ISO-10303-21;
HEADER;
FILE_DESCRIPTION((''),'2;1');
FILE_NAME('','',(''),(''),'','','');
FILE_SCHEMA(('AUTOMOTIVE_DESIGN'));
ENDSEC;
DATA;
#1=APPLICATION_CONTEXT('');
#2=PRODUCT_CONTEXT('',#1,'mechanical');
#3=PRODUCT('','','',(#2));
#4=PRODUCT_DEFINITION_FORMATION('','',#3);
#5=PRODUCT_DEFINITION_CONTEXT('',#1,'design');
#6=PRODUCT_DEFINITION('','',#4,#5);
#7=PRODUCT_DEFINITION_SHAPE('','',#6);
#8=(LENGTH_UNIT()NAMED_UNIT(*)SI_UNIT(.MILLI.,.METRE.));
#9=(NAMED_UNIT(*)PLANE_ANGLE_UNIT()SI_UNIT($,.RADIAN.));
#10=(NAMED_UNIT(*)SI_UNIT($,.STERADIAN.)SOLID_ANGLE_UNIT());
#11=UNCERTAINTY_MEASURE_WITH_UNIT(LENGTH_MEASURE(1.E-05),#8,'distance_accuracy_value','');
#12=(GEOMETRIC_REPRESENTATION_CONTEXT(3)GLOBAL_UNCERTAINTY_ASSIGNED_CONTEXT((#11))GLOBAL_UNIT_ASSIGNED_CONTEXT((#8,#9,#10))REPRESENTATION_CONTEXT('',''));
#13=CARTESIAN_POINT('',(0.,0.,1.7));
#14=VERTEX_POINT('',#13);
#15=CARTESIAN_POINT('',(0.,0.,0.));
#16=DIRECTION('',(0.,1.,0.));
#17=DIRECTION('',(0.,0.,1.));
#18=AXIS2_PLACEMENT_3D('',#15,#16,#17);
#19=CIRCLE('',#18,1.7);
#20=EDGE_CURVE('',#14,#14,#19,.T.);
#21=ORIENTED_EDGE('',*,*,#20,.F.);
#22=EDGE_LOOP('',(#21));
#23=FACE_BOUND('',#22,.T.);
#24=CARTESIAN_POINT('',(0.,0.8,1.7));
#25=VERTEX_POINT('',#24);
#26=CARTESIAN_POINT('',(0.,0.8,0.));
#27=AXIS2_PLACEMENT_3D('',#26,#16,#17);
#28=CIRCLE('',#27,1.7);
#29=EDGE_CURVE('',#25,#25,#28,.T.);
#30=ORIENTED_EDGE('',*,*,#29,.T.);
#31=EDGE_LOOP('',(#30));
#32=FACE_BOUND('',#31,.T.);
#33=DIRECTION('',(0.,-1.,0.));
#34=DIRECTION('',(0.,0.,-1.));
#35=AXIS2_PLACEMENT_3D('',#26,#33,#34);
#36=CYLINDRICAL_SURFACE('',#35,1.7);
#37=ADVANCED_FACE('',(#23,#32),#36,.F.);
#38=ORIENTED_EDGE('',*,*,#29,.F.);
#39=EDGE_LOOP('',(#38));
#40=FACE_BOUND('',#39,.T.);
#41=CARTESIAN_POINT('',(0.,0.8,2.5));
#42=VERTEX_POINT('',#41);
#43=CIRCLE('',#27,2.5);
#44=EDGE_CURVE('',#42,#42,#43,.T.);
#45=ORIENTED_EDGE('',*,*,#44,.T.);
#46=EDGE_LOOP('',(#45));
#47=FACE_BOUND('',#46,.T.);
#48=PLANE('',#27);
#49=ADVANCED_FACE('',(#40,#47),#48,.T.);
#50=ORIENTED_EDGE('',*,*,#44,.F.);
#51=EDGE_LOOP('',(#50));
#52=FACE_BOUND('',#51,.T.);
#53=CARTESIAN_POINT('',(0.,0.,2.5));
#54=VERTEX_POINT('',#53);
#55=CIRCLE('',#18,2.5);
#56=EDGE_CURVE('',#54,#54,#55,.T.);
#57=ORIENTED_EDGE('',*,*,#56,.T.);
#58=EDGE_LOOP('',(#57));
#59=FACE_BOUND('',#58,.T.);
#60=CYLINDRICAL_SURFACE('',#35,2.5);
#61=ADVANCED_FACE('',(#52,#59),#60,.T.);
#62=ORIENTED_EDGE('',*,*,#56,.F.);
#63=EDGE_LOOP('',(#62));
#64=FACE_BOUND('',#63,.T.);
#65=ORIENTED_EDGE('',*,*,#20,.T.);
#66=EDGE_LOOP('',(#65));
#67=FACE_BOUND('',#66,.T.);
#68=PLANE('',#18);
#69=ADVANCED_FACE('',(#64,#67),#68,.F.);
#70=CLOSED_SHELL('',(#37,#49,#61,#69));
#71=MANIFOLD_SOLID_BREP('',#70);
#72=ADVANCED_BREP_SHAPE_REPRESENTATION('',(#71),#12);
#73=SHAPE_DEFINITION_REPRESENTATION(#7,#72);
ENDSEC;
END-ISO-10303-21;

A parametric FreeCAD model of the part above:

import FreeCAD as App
import Part
import Sketcher
Q = App.Units.Quantity

doc = App.newDocument("Part")
params = doc.addObject("Spreadsheet::Sheet", "Params")
for row, (alias, value) in enumerate([
    ("sketch1_diameter", "5 mm"),
    ("sketch1_diameter2", "3.4 mm"),
    ("pad1_length", "0.8 mm"),
], start=1):
    params.set(f"A{row}", alias)
    params.set(f"B{row}", "=" + value)
    params.setAlias(f"B{row}", alias)

body = doc.addObject("PartDesign::Body", "Body")

sketch1 = body.newObject("Sketcher::SketchObject", "Sketch")
sketch1.AttachmentSupport = (doc.getObject("XZ_Plane"), [""])
sketch1.MapMode = "FlatFace"
sketch1.addGeometry([
    Part.Circle(App.Vector(0, 0, 0), App.Vector(0, 0, 1), 2.5),
    Part.Circle(App.Vector(0, 0, 0), App.Vector(0, 0, 1), 1.7),
], False)
sketch1.addConstraint([
    Sketcher.Constraint("Coincident", 0, 3, -1, 1),
    Sketcher.Constraint("Coincident", 1, 3, -1, 1),
    Sketcher.Constraint("Diameter", 0, Q("5 mm")),
    Sketcher.Constraint("Diameter", 1, Q("3.4 mm")),
])
sketch1.setExpression("Constraints[2]", "Params.sketch1_diameter")
sketch1.setExpression("Constraints[3]", "Params.sketch1_diameter2")
pad1 = body.newObject("PartDesign::Pad", "Pad")
pad1.Profile = sketch1
pad1.setExpression("Length", "Params.pad1_length")
pad1.Reversed = True

doc.recompute()
